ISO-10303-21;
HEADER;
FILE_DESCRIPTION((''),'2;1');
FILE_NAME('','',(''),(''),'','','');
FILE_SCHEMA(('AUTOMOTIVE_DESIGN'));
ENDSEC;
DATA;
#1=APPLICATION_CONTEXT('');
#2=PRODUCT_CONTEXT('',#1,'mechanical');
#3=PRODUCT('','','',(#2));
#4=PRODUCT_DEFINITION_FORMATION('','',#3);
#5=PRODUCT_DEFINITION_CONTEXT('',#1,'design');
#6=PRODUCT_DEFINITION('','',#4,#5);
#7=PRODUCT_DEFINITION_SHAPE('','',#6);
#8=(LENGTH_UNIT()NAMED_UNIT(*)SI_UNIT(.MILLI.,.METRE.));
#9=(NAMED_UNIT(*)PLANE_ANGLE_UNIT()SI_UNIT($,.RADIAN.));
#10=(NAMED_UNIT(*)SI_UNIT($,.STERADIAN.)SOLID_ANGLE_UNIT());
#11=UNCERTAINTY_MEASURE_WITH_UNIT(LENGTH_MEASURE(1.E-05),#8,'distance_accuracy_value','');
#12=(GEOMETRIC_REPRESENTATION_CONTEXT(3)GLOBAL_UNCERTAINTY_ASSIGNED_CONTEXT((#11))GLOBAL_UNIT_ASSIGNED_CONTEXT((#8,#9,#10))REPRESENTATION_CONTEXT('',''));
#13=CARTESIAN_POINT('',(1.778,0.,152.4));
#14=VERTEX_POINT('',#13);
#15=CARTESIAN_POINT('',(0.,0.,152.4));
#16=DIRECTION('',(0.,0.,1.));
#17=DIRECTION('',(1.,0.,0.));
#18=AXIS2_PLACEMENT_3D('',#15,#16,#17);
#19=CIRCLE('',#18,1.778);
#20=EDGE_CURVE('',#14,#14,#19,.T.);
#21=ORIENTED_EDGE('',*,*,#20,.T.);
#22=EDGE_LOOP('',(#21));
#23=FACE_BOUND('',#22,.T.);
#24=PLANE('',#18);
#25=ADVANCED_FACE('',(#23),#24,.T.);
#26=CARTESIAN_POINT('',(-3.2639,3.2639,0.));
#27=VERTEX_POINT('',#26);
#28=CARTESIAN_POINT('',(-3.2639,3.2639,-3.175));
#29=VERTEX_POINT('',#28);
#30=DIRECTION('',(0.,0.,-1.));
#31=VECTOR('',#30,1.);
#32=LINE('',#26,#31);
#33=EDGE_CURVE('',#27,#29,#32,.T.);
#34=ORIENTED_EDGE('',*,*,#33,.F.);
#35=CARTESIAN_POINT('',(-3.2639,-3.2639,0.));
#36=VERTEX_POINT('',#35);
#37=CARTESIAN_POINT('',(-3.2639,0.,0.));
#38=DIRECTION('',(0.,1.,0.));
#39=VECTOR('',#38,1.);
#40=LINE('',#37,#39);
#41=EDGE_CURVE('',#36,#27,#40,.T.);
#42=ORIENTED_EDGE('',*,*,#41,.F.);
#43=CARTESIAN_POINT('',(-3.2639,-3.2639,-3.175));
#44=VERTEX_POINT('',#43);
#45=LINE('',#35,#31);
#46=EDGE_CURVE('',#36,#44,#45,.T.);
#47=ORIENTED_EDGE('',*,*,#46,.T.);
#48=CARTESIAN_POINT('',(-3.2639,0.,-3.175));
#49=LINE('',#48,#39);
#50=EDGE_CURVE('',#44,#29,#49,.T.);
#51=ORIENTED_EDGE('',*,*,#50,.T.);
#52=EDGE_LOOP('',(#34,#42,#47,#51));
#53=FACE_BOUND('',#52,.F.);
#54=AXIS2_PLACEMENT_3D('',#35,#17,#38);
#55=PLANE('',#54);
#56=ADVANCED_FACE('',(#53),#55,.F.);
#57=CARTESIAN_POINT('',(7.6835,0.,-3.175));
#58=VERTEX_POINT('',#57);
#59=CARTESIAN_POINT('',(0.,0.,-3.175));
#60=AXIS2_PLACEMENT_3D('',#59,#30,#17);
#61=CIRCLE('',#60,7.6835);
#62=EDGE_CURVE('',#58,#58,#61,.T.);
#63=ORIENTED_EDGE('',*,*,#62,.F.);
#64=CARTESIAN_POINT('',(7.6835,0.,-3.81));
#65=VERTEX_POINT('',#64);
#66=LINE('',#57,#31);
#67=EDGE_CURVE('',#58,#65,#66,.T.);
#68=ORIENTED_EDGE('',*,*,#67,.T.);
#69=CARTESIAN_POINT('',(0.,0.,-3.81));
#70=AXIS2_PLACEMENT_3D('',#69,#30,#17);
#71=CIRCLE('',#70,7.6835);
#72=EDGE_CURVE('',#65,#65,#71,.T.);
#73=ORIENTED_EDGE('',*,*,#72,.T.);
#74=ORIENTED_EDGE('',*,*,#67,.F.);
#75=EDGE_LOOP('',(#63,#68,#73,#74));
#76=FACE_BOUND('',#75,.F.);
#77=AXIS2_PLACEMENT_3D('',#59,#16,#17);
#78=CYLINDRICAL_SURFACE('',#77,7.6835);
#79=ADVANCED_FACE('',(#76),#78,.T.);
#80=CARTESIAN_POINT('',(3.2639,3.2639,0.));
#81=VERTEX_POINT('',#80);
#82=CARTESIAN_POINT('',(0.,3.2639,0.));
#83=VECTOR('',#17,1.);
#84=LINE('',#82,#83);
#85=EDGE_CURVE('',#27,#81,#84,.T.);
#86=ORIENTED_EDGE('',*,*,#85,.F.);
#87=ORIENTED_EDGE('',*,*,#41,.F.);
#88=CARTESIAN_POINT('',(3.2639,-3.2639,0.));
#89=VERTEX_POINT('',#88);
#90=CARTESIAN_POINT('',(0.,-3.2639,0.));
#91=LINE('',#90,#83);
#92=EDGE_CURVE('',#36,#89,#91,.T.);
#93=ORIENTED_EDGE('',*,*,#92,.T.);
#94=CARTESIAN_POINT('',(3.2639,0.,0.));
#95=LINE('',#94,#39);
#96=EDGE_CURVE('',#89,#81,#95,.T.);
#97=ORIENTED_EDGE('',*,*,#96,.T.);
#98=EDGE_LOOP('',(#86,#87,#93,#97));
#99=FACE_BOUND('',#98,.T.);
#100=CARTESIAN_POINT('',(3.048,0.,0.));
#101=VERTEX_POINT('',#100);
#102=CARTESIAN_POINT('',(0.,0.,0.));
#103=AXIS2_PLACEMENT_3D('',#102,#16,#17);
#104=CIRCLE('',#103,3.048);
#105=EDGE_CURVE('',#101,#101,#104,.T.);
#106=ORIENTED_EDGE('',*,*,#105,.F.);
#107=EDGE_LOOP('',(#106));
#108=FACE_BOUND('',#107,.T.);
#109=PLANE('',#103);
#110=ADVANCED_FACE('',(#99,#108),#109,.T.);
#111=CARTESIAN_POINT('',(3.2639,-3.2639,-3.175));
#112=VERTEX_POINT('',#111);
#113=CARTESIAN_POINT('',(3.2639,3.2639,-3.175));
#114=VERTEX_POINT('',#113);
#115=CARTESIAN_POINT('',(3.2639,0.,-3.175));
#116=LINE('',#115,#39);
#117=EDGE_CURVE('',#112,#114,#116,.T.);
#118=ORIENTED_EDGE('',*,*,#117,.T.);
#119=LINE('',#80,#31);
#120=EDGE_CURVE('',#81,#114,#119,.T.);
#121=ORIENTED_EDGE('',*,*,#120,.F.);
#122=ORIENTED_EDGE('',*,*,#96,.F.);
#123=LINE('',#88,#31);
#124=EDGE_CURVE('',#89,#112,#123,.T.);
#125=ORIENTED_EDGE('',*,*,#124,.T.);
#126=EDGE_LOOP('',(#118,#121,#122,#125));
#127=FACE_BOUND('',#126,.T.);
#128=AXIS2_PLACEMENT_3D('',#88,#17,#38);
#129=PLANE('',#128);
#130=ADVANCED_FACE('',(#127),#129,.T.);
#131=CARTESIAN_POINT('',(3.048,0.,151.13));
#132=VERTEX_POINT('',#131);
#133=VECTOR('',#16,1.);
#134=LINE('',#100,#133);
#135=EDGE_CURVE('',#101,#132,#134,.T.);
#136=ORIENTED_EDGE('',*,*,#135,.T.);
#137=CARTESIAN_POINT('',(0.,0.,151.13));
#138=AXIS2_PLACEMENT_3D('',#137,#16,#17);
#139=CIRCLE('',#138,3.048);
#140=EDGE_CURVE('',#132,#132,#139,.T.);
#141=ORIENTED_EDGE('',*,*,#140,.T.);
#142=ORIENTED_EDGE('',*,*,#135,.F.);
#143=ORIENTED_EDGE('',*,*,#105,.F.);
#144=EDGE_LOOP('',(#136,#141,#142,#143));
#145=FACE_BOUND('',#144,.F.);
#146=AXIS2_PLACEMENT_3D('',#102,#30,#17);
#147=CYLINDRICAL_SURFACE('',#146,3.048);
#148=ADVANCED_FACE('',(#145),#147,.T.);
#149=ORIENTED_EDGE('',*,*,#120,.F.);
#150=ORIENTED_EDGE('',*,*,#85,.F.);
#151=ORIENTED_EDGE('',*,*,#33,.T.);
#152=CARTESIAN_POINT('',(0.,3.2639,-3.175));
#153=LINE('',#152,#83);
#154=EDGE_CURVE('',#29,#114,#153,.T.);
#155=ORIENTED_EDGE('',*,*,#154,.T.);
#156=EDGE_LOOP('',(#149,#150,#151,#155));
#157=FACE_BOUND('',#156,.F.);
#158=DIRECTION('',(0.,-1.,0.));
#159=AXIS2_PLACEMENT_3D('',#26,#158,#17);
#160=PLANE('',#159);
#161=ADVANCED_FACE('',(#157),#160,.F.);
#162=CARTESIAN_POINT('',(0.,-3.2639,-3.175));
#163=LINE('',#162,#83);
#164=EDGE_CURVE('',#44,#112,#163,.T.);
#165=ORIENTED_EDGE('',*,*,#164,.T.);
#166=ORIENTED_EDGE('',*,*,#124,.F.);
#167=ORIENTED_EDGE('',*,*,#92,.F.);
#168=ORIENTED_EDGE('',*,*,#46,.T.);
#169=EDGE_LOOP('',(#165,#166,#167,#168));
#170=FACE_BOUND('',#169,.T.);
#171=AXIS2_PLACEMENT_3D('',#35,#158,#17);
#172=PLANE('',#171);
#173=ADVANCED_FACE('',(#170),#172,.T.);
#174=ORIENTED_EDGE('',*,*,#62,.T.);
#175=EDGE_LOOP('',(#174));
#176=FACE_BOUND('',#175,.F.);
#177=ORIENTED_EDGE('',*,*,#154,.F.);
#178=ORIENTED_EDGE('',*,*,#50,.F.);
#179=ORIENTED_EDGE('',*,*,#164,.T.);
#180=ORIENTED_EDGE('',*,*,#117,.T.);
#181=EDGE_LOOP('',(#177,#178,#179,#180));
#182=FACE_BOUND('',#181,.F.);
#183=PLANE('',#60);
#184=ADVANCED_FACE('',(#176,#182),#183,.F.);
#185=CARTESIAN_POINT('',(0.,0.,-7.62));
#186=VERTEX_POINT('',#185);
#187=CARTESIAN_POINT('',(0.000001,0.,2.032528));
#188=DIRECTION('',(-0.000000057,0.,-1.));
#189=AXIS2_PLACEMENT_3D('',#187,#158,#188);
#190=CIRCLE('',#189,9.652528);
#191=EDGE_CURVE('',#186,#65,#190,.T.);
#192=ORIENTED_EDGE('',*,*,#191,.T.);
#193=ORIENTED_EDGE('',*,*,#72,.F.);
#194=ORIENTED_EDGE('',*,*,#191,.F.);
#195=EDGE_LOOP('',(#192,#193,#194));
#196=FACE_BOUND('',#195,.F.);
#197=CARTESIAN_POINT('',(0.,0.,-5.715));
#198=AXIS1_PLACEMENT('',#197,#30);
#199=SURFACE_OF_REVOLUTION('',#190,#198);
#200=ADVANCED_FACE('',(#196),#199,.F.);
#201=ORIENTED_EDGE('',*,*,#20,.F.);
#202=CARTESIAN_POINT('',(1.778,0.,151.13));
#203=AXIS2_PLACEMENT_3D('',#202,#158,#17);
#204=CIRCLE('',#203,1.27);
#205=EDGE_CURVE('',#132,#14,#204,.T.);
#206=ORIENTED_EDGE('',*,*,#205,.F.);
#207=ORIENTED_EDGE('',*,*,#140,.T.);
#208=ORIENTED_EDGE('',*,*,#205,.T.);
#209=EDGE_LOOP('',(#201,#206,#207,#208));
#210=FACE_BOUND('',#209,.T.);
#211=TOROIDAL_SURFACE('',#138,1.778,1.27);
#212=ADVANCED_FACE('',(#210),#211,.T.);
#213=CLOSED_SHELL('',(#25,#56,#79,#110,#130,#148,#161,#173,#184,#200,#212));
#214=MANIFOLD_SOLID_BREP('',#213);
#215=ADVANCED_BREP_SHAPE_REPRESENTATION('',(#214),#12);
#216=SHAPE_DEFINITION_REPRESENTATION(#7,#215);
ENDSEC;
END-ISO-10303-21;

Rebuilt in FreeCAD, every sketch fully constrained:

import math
import FreeCAD as App
import Part
import Sketcher

V = App.Vector
Q = App.Units.Quantity


def edges_at(feature, points):
    """Names of the edges that pass closest to the given points."""
    edges = feature.Shape.Edges
    near = lambda p: min(range(len(edges)), key=lambda i: edges[i].distToShape(Part.Vertex(*p))[0])
    return sorted({f"Edge{near(p) + 1}" for p in points})

doc = App.newDocument("Part")
body = doc.addObject("PartDesign::Body", "Body")

# Sketch on XY plane
sketch1 = doc.addObject("Sketcher::SketchObject", "Sketch")
body.addObject(sketch1)
sketch1.AttachmentSupport = (doc.XY_Plane, [""])
sketch1.MapMode = "FlatFace"
sketch1.addGeometry(Part.Circle(V(0, 0, 0), V(0, 0, 1), 3), False)
sketch1.addConstraint(Sketcher.Constraint("Coincident", 0, 3, -1, 1))
sketch1.addConstraint(Sketcher.Constraint("Diameter", 0, Q("0.24 in")))
pad1 = doc.addObject("PartDesign::Pad", "Pad")
body.addObject(pad1)
pad1.Profile = sketch1
pad1.Length = Q("6 in")

# Sketch on XY plane
sketch2 = doc.addObject("Sketcher::SketchObject", "Sketch001")
body.addObject(sketch2)
sketch2.AttachmentSupport = (doc.XY_Plane, [""])
sketch2.MapMode = "FlatFace"
sketch2.addGeometry(Part.LineSegment(V(-3, 3, 0), V(-3, -3, 0)), False)
sketch2.addGeometry(Part.LineSegment(V(-3, -3, 0), V(3, -3, 0)), False)
sketch2.addGeometry(Part.LineSegment(V(3, -3, 0), V(3, 3, 0)), False)
sketch2.addGeometry(Part.LineSegment(V(3, 3, 0), V(-3, 3, 0)), False)
sketch2.addConstraint(Sketcher.Constraint("Coincident", 0, 2, 1, 1))
sketch2.addConstraint(Sketcher.Constraint("Coincident", 1, 2, 2, 1))
sketch2.addConstraint(Sketcher.Constraint("Coincident", 2, 2, 3, 1))
sketch2.addConstraint(Sketcher.Constraint("Coincident", 3, 2, 0, 1))
sketch2.addConstraint(Sketcher.Constraint("Vertical", 0))
sketch2.addConstraint(Sketcher.Constraint("Horizontal", 1))
sketch2.addConstraint(Sketcher.Constraint("Vertical", 2))
sketch2.addConstraint(Sketcher.Constraint("Horizontal", 3))
sketch2.addConstraint(Sketcher.Constraint("Symmetric", 0, 2, 2, 2, -1, 1))
sketch2.addConstraint(Sketcher.Constraint("Equal", 3, 0))
sketch2.addConstraint(Sketcher.Constraint("DistanceX", 1, 1, 1, 2, Q("0.257 in")))
pad2 = doc.addObject("PartDesign::Pad", "Pad001")
body.addObject(pad2)
pad2.Profile = sketch2
pad2.Length = Q("0.125 in")
pad2.Reversed = True

# Sketch on XY plane
sketch3 = doc.addObject("Sketcher::SketchObject", "Sketch002")
body.addObject(sketch3)
sketch3.AttachmentSupport = (doc.XY_Plane, [""])
sketch3.MapMode = "FlatFace"
sketch3.AttachmentOffset = App.Placement(V(0, 0, -0.125 * 25.4), App.Rotation())
sketch3.addGeometry(Part.Circle(V(0, 0, 0), V(0, 0, 1), 8), False)
sketch3.addConstraint(Sketcher.Constraint("Coincident", 0, 3, -1, 1))
sketch3.addConstraint(Sketcher.Constraint("Diameter", 0, Q("0.605 in")))
pad3 = doc.addObject("PartDesign::Pad", "Pad002")
body.addObject(pad3)
pad3.Profile = sketch3
pad3.Length = Q("0.025 in")
pad3.Reversed = True

# Sketch on XZ plane
sketch4 = doc.addObject("Sketcher::SketchObject", "Sketch003")
body.addObject(sketch4)
sketch4.AttachmentSupport = (doc.XZ_Plane, [""])
sketch4.MapMode = "FlatFace"
sketch4.addGeometry(Part.LineSegment(V(0, -3.8, 0), V(0, -7.6, 0)), False)
sketch4.addGeometry(Part.ArcOfCircle(Part.Circle(V(0, 2, 0), V(0, 0, 1), 9.7), math.radians(-90), math.radians(-37)), False)
sketch4.addGeometry(Part.LineSegment(V(7.7, -3.8, 0), V(0, -3.8, 0)), False)
sketch4.addConstraint(Sketcher.Constraint("Coincident", 0, 2, 1, 1))
sketch4.addConstraint(Sketcher.Constraint("Coincident", 1, 2, 2, 1))
sketch4.addConstraint(Sketcher.Constraint("Coincident", 2, 2, 0, 1))
sketch4.addConstraint(Sketcher.Constraint("Vertical", 0))
sketch4.addConstraint(Sketcher.Constraint("Horizontal", 2))
sketch4.addConstraint(Sketcher.Constraint("PointOnObject", 1, 3, -2))
sketch4.addConstraint(Sketcher.Constraint("PointOnObject", 0, 2, -2))
sketch4.addConstraint(Sketcher.Constraint("DistanceY", 0, 2, 0, 1, Q("0.15 in")))
sketch4.addConstraint(Sketcher.Constraint("DistanceY", 0, 2, -1, 1, Q("0.3 in")))
sketch4.addConstraint(Sketcher.Constraint("DistanceX", 2, 2, 2, 1, Q("0.3025 in")))
revolution = doc.addObject("PartDesign::Revolution", "Revolution")
body.addObject(revolution)
revolution.Profile = sketch4
revolution.ReferenceAxis = (sketch4, ["V_Axis"])
revolution.Angle = 360
doc.recompute()

fillet = doc.addObject("PartDesign::Fillet", "Fillet")
body.addObject(fillet)
fillet.Base = (revolution, edges_at(revolution, [(-3.048, 0, 152.4)]))
fillet.Radius = Q("0.05 in")

doc.recompute()
